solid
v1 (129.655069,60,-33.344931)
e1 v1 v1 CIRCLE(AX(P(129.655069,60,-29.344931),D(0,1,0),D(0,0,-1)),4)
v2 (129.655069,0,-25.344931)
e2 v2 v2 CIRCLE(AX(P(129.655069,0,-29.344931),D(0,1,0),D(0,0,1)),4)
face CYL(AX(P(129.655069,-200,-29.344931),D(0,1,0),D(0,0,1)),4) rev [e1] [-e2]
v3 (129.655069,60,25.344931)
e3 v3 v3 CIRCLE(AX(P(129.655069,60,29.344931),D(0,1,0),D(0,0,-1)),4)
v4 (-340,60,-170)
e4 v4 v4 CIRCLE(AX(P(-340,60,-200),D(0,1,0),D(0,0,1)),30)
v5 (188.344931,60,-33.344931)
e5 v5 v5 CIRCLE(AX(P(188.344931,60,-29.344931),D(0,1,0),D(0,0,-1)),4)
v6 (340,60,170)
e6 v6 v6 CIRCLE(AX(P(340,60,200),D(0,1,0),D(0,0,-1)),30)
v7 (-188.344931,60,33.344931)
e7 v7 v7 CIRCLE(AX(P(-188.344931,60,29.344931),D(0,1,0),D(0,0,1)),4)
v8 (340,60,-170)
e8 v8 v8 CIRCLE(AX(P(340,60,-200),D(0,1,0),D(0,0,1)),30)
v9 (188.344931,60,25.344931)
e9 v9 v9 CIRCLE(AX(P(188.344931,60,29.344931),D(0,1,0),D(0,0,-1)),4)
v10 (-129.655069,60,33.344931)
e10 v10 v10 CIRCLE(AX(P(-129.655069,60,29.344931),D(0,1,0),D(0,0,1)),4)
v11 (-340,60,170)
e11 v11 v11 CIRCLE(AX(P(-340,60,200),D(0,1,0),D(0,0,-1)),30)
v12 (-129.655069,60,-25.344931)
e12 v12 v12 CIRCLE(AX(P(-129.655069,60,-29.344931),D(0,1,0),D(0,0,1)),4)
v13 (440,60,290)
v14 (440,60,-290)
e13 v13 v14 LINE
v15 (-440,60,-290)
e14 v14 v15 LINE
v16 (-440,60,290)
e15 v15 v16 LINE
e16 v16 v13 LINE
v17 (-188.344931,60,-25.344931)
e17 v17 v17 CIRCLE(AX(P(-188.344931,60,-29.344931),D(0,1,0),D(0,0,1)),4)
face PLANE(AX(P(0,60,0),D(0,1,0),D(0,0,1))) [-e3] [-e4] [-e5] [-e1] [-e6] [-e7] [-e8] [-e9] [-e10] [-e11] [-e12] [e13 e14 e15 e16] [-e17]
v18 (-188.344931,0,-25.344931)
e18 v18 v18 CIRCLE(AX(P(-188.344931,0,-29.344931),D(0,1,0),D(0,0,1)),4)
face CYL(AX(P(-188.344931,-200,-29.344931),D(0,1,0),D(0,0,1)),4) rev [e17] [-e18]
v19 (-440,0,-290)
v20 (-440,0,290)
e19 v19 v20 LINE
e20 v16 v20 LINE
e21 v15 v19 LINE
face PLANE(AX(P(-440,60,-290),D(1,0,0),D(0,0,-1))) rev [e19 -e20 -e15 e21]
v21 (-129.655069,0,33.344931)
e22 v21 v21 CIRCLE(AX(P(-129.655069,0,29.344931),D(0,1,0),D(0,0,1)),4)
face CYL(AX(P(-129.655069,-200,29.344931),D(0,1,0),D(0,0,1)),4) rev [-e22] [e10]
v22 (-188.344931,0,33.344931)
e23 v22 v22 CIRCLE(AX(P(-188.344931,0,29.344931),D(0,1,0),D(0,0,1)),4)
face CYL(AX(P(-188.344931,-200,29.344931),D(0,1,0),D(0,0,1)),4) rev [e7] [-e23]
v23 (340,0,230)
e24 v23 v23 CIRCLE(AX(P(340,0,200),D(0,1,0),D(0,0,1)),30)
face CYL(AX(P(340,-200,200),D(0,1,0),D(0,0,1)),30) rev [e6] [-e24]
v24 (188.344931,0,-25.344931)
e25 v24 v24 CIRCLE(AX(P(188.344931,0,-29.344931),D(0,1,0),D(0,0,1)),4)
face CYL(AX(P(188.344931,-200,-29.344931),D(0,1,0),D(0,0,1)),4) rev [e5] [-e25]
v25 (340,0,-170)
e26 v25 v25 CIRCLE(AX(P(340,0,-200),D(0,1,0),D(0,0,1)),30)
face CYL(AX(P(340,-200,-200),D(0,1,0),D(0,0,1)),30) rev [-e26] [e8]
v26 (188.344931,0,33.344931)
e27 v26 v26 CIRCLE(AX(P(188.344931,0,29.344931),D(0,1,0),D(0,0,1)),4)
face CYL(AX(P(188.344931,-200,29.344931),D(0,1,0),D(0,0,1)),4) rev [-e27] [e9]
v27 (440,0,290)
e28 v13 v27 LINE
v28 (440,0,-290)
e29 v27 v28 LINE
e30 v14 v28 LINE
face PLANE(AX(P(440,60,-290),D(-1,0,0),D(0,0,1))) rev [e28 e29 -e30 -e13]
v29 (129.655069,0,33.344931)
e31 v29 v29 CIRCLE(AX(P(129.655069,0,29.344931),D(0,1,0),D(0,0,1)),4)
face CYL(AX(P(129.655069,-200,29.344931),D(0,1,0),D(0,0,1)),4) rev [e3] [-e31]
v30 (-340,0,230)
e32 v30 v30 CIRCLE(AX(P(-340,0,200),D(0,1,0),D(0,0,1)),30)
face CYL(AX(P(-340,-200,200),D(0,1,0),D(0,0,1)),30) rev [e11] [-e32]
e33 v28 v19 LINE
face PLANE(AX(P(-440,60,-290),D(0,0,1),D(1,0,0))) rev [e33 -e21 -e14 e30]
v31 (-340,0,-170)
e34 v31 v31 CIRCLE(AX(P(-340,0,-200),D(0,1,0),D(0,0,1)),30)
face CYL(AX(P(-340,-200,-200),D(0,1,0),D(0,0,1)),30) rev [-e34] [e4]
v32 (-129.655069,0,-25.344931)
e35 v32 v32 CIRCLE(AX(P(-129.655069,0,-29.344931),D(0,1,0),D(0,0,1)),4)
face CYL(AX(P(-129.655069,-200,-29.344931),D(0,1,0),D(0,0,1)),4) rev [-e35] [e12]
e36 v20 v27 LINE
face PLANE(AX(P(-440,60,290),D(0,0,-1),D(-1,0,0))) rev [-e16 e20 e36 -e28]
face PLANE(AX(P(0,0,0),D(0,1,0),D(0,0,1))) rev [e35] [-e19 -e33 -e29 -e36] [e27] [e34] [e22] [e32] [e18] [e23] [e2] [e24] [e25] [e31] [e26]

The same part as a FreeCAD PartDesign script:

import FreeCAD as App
import Part
import Sketcher
Q = App.Units.Quantity

doc = App.newDocument("Part")
body = doc.addObject("PartDesign::Body", "Body")

# Sketch on XZ plane
sketch1 = body.newObject("Sketcher::SketchObject", "Sketch")
sketch1.AttachmentSupport = (doc.getObject("XZ_Plane"), [""])
sketch1.MapMode = "FlatFace"
sketch1.addGeometry([
    Part.LineSegment(App.Vector(-440, -290, 0), App.Vector(-440, 290, 0)),
    Part.LineSegment(App.Vector(-440, 290, 0), App.Vector(440, 290, 0)),
    Part.LineSegment(App.Vector(440, 290, 0), App.Vector(440, -290, 0)),
    Part.LineSegment(App.Vector(440, -290, 0), App.Vector(-440, -290, 0)),
], False)
sketch1.addConstraint([
    Sketcher.Constraint("Coincident", 0, 2, 1, 1),
    Sketcher.Constraint("Coincident", 1, 2, 2, 1),
    Sketcher.Constraint("Coincident", 2, 2, 3, 1),
    Sketcher.Constraint("Coincident", 3, 2, 0, 1),
    Sketcher.Constraint("Vertical", 0),
    Sketcher.Constraint("Horizontal", 1),
    Sketcher.Constraint("Vertical", 2),
    Sketcher.Constraint("Horizontal", 3),
    Sketcher.Constraint("Symmetric", 0, 2, 2, 2, -1, 1),
    Sketcher.Constraint("DistanceX", 1, 1, 1, 2, Q("880 mm")),
    Sketcher.Constraint("DistanceY", 0, 1, 0, 2, Q("580 mm")),
])
pad1 = body.newObject("PartDesign::Pad", "Pad")
pad1.Profile = sketch1
pad1.Length = 60
pad1.Reversed = True

# Sketch on XZ plane
sketch2 = body.newObject("Sketcher::SketchObject", "Sketch001")
sketch2.AttachmentSupport = (doc.getObject("XZ_Plane"), [""])
sketch2.MapMode = "FlatFace"
sketch2.AttachmentOffset = App.Placement(App.Vector(0, 0, -60), App.Rotation())
sketch2.addGeometry([
    Part.Circle(App.Vector(-340, -200, 0), App.Vector(0, 0, 1), 30),
    Part.Circle(App.Vector(340, -200, 0), App.Vector(0, 0, 1), 30),
    Part.Circle(App.Vector(340, 200, 0), App.Vector(0, 0, 1), 30),
    Part.Circle(App.Vector(-340, 200, 0), App.Vector(0, 0, 1), 30),
], False)
sketch2.addConstraint([
    Sketcher.Constraint("Equal", 0, 1),
    Sketcher.Constraint("Equal", 1, 2),
    Sketcher.Constraint("Equal", 2, 3),
    Sketcher.Constraint("Symmetric", 0, 3, 2, 3, -1, 1),
    Sketcher.Constraint("Symmetric", 1, 3, 3, 3, -1, 1),
    Sketcher.Constraint("Symmetric", 0, 3, 1, 3, -2),
    Sketcher.Constraint("Diameter", 0, Q("60 mm")),
    Sketcher.Constraint("DistanceX", 0, 3, -1, 1, Q("340 mm")),
    Sketcher.Constraint("DistanceY", 0, 3, -1, 1, Q("200 mm")),
])
pocket1 = body.newObject("PartDesign::Pocket", "Pocket")
pocket1.Profile = sketch2
pocket1.Length = 260
pocket1.Reversed = True

# Sketch on XZ plane
sketch3 = body.newObject("Sketcher::SketchObject", "Sketch002")
sketch3.AttachmentSupport = (doc.getObject("XZ_Plane"), [""])
sketch3.MapMode = "FlatFace"
sketch3.AttachmentOffset = App.Placement(App.Vector(0, 0, -60), App.Rotation())
sketch3.addGeometry([
    Part.Circle(App.Vector(-129.7, -29.3, 0), App.Vector(0, 0, 1), 4),  # 0
    Part.Circle(App.Vector(-129.7, 29.3, 0), App.Vector(0, 0, 1), 4),  # 1
    Part.Circle(App.Vector(-188.3, 29.3, 0), App.Vector(0, 0, 1), 4),  # 2
    Part.Circle(App.Vector(-188.3, -29.3, 0), App.Vector(0, 0, 1), 4),  # 3
    Part.Circle(App.Vector(188.3, -29.3, 0), App.Vector(0, 0, 1), 4),  # 4
    Part.Circle(App.Vector(188.3, 29.3, 0), App.Vector(0, 0, 1), 4),  # 5
    Part.Circle(App.Vector(129.7, 29.3, 0), App.Vector(0, 0, 1), 4),  # 6
    Part.Circle(App.Vector(129.7, -29.3, 0), App.Vector(0, 0, 1), 4),  # 7
], False)
sketch3.addConstraint([
    Sketcher.Constraint("Equal", 0, 1),
    Sketcher.Constraint("Equal", 1, 2),
    Sketcher.Constraint("Equal", 2, 3),
    Sketcher.Constraint("Equal", 3, 4),
    Sketcher.Constraint("Equal", 4, 5),
    Sketcher.Constraint("Equal", 5, 6),
    Sketcher.Constraint("Equal", 6, 7),
    Sketcher.Constraint("Symmetric", 2, 3, 4, 3, -1, 1),
    Sketcher.Constraint("Symmetric", 3, 3, 5, 3, -1, 1),
    Sketcher.Constraint("Symmetric", 0, 3, 6, 3, -1, 1),
    Sketcher.Constraint("Symmetric", 1, 3, 7, 3, -1, 1),
    Sketcher.Constraint("Symmetric", 3, 3, 4, 3, -2),
    Sketcher.Constraint("Symmetric", 1, 3, 6, 3, -2),
    Sketcher.Constraint("Horizontal", 1, 3, 2, 3),
    Sketcher.Constraint("Diameter", 0, Q("8 mm")),
    Sketcher.Constraint("DistanceX", 0, 3, 4, 3, Q("318 mm")),
    Sketcher.Constraint("DistanceX", 0, 3, -1, 1, Q("129.655069 mm")),
    Sketcher.Constraint("DistanceY", 0, 3, -1, 1, Q("29.344931 mm")),
])
pocket2 = body.newObject("PartDesign::Pocket", "Pocket001")
pocket2.Profile = sketch3
pocket2.Length = 260
pocket2.Reversed = True

doc.recompute()
